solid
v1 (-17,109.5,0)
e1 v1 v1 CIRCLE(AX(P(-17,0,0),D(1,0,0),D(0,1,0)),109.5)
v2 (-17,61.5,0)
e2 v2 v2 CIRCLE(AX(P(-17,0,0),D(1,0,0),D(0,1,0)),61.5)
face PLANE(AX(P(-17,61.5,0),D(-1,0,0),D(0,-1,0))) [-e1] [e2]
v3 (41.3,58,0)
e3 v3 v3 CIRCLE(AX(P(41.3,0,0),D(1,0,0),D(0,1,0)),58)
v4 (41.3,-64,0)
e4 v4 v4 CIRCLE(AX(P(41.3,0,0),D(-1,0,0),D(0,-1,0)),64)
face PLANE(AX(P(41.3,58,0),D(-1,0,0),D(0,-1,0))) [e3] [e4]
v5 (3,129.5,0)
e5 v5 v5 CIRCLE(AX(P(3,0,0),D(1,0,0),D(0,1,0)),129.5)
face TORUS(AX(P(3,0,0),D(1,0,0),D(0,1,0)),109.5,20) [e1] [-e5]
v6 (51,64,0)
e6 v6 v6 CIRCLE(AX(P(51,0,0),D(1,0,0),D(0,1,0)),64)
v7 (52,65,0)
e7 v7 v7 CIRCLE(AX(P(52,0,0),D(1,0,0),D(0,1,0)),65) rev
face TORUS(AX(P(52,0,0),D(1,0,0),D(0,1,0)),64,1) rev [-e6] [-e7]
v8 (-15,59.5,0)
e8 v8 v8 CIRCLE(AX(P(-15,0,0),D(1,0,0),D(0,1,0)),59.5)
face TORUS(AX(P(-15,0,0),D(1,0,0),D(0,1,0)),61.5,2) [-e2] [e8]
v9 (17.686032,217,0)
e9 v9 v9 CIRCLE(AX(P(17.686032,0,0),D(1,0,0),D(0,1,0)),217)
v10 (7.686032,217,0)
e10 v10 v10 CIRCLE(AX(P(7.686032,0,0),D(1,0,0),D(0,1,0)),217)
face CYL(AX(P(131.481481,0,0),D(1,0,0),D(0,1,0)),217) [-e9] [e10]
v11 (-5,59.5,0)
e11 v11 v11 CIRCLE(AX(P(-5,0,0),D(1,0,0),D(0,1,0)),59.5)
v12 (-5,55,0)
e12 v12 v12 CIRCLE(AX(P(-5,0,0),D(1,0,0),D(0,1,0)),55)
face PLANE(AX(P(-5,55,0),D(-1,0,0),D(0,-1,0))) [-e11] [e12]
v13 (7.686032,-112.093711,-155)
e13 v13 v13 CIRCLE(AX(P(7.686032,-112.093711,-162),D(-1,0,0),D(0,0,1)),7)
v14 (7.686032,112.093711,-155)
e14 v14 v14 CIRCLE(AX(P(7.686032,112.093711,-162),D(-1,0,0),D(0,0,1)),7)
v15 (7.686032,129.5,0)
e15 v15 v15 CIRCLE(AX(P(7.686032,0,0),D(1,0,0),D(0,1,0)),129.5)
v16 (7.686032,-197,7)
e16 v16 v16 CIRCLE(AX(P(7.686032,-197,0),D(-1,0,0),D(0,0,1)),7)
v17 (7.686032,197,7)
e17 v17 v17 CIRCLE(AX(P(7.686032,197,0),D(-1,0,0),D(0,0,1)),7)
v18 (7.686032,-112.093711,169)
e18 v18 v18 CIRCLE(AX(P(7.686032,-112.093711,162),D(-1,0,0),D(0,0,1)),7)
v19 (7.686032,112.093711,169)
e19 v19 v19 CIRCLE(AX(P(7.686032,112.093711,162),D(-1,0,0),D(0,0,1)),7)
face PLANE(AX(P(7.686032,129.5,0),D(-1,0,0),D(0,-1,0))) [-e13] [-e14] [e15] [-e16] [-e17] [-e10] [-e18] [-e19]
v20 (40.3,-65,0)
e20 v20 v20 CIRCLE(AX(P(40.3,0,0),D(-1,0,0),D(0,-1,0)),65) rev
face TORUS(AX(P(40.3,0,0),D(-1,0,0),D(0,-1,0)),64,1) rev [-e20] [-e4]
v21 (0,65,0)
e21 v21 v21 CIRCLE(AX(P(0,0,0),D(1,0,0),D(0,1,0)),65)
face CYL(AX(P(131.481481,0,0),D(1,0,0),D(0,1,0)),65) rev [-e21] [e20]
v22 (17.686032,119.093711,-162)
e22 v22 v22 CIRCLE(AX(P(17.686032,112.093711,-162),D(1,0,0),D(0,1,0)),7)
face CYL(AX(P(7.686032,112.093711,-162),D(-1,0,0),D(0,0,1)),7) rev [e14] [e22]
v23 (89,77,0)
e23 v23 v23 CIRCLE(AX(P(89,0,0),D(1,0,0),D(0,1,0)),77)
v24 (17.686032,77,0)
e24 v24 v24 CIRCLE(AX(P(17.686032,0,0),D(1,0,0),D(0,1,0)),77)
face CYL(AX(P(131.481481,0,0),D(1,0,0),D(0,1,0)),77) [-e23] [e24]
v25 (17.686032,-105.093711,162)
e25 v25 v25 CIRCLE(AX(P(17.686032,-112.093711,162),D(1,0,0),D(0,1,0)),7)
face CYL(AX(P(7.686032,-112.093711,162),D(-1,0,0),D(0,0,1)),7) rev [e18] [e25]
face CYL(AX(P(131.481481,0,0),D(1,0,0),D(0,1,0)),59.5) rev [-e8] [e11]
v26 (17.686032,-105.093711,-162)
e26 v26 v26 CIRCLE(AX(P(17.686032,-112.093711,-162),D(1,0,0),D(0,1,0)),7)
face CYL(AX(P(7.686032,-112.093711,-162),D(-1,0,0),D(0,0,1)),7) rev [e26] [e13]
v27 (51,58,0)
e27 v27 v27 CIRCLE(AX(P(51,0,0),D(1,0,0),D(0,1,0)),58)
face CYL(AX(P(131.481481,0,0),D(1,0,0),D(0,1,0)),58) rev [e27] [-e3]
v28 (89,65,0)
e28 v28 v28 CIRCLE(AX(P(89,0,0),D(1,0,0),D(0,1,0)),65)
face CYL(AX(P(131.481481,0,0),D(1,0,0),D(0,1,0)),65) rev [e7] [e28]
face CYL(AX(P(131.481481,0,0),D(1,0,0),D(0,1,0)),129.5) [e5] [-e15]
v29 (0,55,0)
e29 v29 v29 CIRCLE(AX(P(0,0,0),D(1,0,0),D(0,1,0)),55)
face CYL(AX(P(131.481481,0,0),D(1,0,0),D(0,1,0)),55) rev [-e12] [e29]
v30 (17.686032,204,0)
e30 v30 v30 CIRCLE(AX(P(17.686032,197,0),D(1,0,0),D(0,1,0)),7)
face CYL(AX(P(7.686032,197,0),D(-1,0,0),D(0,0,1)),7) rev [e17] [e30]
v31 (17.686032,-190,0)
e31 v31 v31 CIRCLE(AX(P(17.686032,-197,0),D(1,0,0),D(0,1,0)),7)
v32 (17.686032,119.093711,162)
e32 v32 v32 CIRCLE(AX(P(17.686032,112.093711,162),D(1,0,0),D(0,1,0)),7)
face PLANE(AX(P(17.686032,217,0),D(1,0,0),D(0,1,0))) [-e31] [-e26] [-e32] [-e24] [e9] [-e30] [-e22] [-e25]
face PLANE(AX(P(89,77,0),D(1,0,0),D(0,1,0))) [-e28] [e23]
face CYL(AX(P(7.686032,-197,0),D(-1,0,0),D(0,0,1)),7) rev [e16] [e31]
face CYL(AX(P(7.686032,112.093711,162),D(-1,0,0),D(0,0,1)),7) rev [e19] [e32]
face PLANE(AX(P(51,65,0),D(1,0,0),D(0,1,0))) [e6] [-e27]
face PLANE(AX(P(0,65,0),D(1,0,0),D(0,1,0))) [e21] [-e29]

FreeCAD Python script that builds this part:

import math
import FreeCAD as App
import Part
import Sketcher


def edges_at(feature, points):
    """Names of the edges that pass closest to the given points."""
    edges = feature.Shape.Edges
    near = lambda p: min(range(len(edges)), key=lambda i: edges[i].distToShape(Part.Vertex(*p))[0])
    return sorted({f"Edge{near(p) + 1}" for p in points})

doc = App.newDocument("Part")
body = doc.addObject("PartDesign::Body", "Body")

# Sketch on XY plane
sketch1 = body.newObject("Sketcher::SketchObject", "Sketch")
sketch1.AttachmentSupport = (doc.getObject("XY_Plane"), [""])
sketch1.MapMode = "FlatFace"
sketch1.addGeometry(Part.LineSegment(App.Vector(51, 65, 0), App.Vector(89, 65, 0)), False)
sketch1.addGeometry(Part.LineSegment(App.Vector(89, 65, 0), App.Vector(89, 77, 0)), False)
sketch1.addGeometry(Part.LineSegment(App.Vector(89, 77, 0), App.Vector(17.7, 77, 0)), False)
sketch1.addGeometry(Part.LineSegment(App.Vector(17.7, 77, 0), App.Vector(17.7, 217, 0)), False)
sketch1.addGeometry(Part.LineSegment(App.Vector(17.7, 217, 0), App.Vector(7.7, 217, 0)), False)
sketch1.addGeometry(Part.LineSegment(App.Vector(7.7, 217, 0), App.Vector(7.7, 129.5, 0)), False)
sketch1.addGeometry(Part.LineSegment(App.Vector(7.7, 129.5, 0), App.Vector(3, 129.5, 0)), False)
sketch1.addGeometry(Part.ArcOfCircle(Part.Circle(App.Vector(3, 109.5, 0), App.Vector(0, 0, 1), 20), math.radians(90), math.radians(180)), False)
sketch1.addGeometry(Part.LineSegment(App.Vector(-17, 109.5, 0), App.Vector(-17, 61.5, 0)), False)
sketch1.addGeometry(Part.ArcOfCircle(Part.Circle(App.Vector(-15, 61.5, 0), App.Vector(0, 0, 1), 2), math.radians(-180), math.radians(-90)), False)
sketch1.addGeometry(Part.LineSegment(App.Vector(-15, 59.5, 0), App.Vector(-5, 59.5, 0)), False)
sketch1.addGeometry(Part.LineSegment(App.Vector(-5, 59.5, 0), App.Vector(-5, 55, 0)), False)
sketch1.addGeometry(Part.LineSegment(App.Vector(-5, 55, 0), App.Vector(0, 55, 0)), False)
sketch1.addGeometry(Part.LineSegment(App.Vector(0, 55, 0), App.Vector(0, 65, 0)), False)
sketch1.addGeometry(Part.LineSegment(App.Vector(0, 65, 0), App.Vector(41.3, 65, 0)), False)
sketch1.addGeometry(Part.LineSegment(App.Vector(41.3, 65, 0), App.Vector(41.3, 58, 0)), False)
sketch1.addGeometry(Part.LineSegment(App.Vector(41.3, 58, 0), App.Vector(51, 58, 0)), False)
sketch1.addGeometry(Part.LineSegment(App.Vector(51, 58, 0), App.Vector(51, 65, 0)), False)
sketch1.addConstraint(Sketcher.Constraint("Coincident", 0, 2, 1, 1))
sketch1.addConstraint(Sketcher.Constraint("Coincident", 1, 2, 2, 1))
sketch1.addConstraint(Sketcher.Constraint("Coincident", 2, 2, 3, 1))
sketch1.addConstraint(Sketcher.Constraint("Coincident", 3, 2, 4, 1))
sketch1.addConstraint(Sketcher.Constraint("Coincident", 4, 2, 5, 1))
sketch1.addConstraint(Sketcher.Constraint("Coincident", 5, 2, 6, 1))
sketch1.addConstraint(Sketcher.Constraint("Tangent", 6, 2, 7, 1))
sketch1.addConstraint(Sketcher.Constraint("Tangent", 7, 2, 8, 1))
sketch1.addConstraint(Sketcher.Constraint("Tangent", 8, 2, 9, 1))
sketch1.addConstraint(Sketcher.Constraint("Tangent", 9, 2, 10, 1))
sketch1.addConstraint(Sketcher.Constraint("Coincident", 10, 2, 11, 1))
sketch1.addConstraint(Sketcher.Constraint("Coincident", 11, 2, 12, 1))
sketch1.addConstraint(Sketcher.Constraint("Coincident", 12, 2, 13, 1))
sketch1.addConstraint(Sketcher.Constraint("Coincident", 13, 2, 14, 1))
sketch1.addConstraint(Sketcher.Constraint("Coincident", 14, 2, 15, 1))
sketch1.addConstraint(Sketcher.Constraint("Coincident", 15, 2, 16, 1))
sketch1.addConstraint(Sketcher.Constraint("Coincident", 16, 2, 17, 1))
sketch1.addConstraint(Sketcher.Constraint("Coincident", 17, 2, 0, 1))
sketch1.addConstraint(Sketcher.Constraint("Horizontal", 0))
sketch1.addConstraint(Sketcher.Constraint("Vertical", 1))
sketch1.addConstraint(Sketcher.Constraint("Horizontal", 2))
sketch1.addConstraint(Sketcher.Constraint("Vertical", 3))
sketch1.addConstraint(Sketcher.Constraint("Horizontal", 4))
sketch1.addConstraint(Sketcher.Constraint("Vertical", 5))
sketch1.addConstraint(Sketcher.Constraint("Horizontal", 6))
sketch1.addConstraint(Sketcher.Constraint("Vertical", 8))
sketch1.addConstraint(Sketcher.Constraint("Horizontal", 10))
sketch1.addConstraint(Sketcher.Constraint("Vertical", 11))
sketch1.addConstraint(Sketcher.Constraint("Horizontal", 12))
sketch1.addConstraint(Sketcher.Constraint("Vertical", 13))
sketch1.addConstraint(Sketcher.Constraint("Horizontal", 14))
sketch1.addConstraint(Sketcher.Constraint("Vertical", 15))
sketch1.addConstraint(Sketcher.Constraint("Horizontal", 16))
sketch1.addConstraint(Sketcher.Constraint("Vertical", 17))
sketch1.addConstraint(Sketcher.Constraint("PointOnObject", 12, 2, -2))
sketch1.addConstraint(Sketcher.Constraint("Horizontal", 0, 2, 13, 2))
sketch1.addConstraint(Sketcher.Constraint("Equal", 4, 10))
sketch1.addConstraint(Sketcher.Constraint("Equal", 10, 13))
sketch1.addConstraint(Sketcher.Constraint("Radius", 7, 20.0))
sketch1.addConstraint(Sketcher.Constraint("Radius", 9, 2.0))
sketch1.addConstraint(Sketcher.Constraint("DistanceX", 0, 1, 0, 2, 38.0))
sketch1.addConstraint(Sketcher.Constraint("DistanceX", 4, 2, 4, 1, 10.0))
sketch1.addConstraint(Sketcher.Constraint("DistanceX", 12, 1, 12, 2, 5.0))
sketch1.addConstraint(Sketcher.Constraint("DistanceY", 1, 1, 1, 2, 12.0))
sketch1.addConstraint(Sketcher.Constraint("DistanceY", 3, 1, 3, 2, 140.0))
sketch1.addConstraint(Sketcher.Constraint("DistanceY", 8, 2, 8, 1, 48.0))
sketch1.addConstraint(Sketcher.Constraint("DistanceY", 15, 2, 15, 1, 7.0))
sketch1.addConstraint(Sketcher.Constraint("DistanceX", 14, 1, 14, 2, 41.3))
sketch1.addConstraint(Sketcher.Constraint("DistanceX", 16, 1, 16, 2, 9.7))
sketch1.addConstraint(Sketcher.Constraint("DistanceY", 5, 2, 5, 1, 87.5))
sketch1.addConstraint(Sketcher.Constraint("DistanceY", -1, 1, 0, 2, 65.0))
sketch1.addConstraint(Sketcher.Constraint("DistanceX", 2, 2, 2, 1, 71.313968))
revolution = body.newObject("PartDesign::Revolution", "Revolution")
revolution.Profile = sketch1
revolution.ReferenceAxis = (sketch1, ["H_Axis"])
revolution.Angle = 360
doc.recompute()

fillet = body.newObject("PartDesign::Fillet", "Fillet")
fillet.Base = (revolution, edges_at(revolution, [(41.3, -65, 0), (51, -65, 0)]))
fillet.Radius = 1

# Sketch on YZ plane
sketch2 = body.newObject("Sketcher::SketchObject", "Sketch001")
sketch2.AttachmentSupport = (doc.getObject("YZ_Plane"), [""])
sketch2.MapMode = "FlatFace"
sketch2.AttachmentOffset = App.Placement(App.Vector(0, 0, 7.686032), App.Rotation())
sketch2.addGeometry(Part.Circle(App.Vector(197, 0, 0), App.Vector(0, 0, 1), 7), False)
sketch2.addGeometry(Part.Circle(App.Vector(-197, 0, 0), App.Vector(0, 0, 1), 7), False)
sketch2.addGeometry(Part.Circle(App.Vector(-112, 162, 0), App.Vector(0, 0, 1), 7), False)
sketch2.addGeometry(Part.Circle(App.Vector(-112, -162, 0), App.Vector(0, 0, 1), 7), False)
sketch2.addGeometry(Part.Circle(App.Vector(112, -162, 0), App.Vector(0, 0, 1), 7), False)
sketch2.addGeometry(Part.Circle(App.Vector(112, 162, 0), App.Vector(0, 0, 1), 7), False)
sketch2.addConstraint(Sketcher.Constraint("Equal", 0, 1))
sketch2.addConstraint(Sketcher.Constraint("Equal", 1, 2))
sketch2.addConstraint(Sketcher.Constraint("Equal", 2, 3))
sketch2.addConstraint(Sketcher.Constraint("Equal", 3, 4))
sketch2.addConstraint(Sketcher.Constraint("Equal", 4, 5))
sketch2.addConstraint(Sketcher.Constraint("Symmetric", 0, 3, 1, 3, -1, 1))
sketch2.addConstraint(Sketcher.Constraint("Symmetric", 2, 3, 4, 3, -1, 1))
sketch2.addConstraint(Sketcher.Constraint("Symmetric", 3, 3, 5, 3, -1, 1))
sketch2.addConstraint(Sketcher.Constraint("Symmetric", 3, 3, 4, 3, -2))
sketch2.addConstraint(Sketcher.Constraint("PointOnObject", 0, 3, -1))
sketch2.addConstraint(Sketcher.Constraint("Diameter", 0, 14.0))
sketch2.addConstraint(Sketcher.Constraint("DistanceX", -1, 1, 0, 3, 197.0))
sketch2.addConstraint(Sketcher.Constraint("DistanceY", -1, 1, 2, 3, 162.0))
sketch2.addConstraint(Sketcher.Constraint("DistanceX", 2, 3, -1, 1, 112.093711))
doc.recompute()
hole = body.newObject("PartDesign::Hole", "Hole")
hole.Profile = sketch2
hole.ThreadType = "None"
hole.Diameter = 14
hole.DepthType = "Dimension"
hole.Depth = 38
hole.DrillPoint = "Angled"
hole.DrillPointAngle = 118
hole.Reversed = True

doc.recompute()
